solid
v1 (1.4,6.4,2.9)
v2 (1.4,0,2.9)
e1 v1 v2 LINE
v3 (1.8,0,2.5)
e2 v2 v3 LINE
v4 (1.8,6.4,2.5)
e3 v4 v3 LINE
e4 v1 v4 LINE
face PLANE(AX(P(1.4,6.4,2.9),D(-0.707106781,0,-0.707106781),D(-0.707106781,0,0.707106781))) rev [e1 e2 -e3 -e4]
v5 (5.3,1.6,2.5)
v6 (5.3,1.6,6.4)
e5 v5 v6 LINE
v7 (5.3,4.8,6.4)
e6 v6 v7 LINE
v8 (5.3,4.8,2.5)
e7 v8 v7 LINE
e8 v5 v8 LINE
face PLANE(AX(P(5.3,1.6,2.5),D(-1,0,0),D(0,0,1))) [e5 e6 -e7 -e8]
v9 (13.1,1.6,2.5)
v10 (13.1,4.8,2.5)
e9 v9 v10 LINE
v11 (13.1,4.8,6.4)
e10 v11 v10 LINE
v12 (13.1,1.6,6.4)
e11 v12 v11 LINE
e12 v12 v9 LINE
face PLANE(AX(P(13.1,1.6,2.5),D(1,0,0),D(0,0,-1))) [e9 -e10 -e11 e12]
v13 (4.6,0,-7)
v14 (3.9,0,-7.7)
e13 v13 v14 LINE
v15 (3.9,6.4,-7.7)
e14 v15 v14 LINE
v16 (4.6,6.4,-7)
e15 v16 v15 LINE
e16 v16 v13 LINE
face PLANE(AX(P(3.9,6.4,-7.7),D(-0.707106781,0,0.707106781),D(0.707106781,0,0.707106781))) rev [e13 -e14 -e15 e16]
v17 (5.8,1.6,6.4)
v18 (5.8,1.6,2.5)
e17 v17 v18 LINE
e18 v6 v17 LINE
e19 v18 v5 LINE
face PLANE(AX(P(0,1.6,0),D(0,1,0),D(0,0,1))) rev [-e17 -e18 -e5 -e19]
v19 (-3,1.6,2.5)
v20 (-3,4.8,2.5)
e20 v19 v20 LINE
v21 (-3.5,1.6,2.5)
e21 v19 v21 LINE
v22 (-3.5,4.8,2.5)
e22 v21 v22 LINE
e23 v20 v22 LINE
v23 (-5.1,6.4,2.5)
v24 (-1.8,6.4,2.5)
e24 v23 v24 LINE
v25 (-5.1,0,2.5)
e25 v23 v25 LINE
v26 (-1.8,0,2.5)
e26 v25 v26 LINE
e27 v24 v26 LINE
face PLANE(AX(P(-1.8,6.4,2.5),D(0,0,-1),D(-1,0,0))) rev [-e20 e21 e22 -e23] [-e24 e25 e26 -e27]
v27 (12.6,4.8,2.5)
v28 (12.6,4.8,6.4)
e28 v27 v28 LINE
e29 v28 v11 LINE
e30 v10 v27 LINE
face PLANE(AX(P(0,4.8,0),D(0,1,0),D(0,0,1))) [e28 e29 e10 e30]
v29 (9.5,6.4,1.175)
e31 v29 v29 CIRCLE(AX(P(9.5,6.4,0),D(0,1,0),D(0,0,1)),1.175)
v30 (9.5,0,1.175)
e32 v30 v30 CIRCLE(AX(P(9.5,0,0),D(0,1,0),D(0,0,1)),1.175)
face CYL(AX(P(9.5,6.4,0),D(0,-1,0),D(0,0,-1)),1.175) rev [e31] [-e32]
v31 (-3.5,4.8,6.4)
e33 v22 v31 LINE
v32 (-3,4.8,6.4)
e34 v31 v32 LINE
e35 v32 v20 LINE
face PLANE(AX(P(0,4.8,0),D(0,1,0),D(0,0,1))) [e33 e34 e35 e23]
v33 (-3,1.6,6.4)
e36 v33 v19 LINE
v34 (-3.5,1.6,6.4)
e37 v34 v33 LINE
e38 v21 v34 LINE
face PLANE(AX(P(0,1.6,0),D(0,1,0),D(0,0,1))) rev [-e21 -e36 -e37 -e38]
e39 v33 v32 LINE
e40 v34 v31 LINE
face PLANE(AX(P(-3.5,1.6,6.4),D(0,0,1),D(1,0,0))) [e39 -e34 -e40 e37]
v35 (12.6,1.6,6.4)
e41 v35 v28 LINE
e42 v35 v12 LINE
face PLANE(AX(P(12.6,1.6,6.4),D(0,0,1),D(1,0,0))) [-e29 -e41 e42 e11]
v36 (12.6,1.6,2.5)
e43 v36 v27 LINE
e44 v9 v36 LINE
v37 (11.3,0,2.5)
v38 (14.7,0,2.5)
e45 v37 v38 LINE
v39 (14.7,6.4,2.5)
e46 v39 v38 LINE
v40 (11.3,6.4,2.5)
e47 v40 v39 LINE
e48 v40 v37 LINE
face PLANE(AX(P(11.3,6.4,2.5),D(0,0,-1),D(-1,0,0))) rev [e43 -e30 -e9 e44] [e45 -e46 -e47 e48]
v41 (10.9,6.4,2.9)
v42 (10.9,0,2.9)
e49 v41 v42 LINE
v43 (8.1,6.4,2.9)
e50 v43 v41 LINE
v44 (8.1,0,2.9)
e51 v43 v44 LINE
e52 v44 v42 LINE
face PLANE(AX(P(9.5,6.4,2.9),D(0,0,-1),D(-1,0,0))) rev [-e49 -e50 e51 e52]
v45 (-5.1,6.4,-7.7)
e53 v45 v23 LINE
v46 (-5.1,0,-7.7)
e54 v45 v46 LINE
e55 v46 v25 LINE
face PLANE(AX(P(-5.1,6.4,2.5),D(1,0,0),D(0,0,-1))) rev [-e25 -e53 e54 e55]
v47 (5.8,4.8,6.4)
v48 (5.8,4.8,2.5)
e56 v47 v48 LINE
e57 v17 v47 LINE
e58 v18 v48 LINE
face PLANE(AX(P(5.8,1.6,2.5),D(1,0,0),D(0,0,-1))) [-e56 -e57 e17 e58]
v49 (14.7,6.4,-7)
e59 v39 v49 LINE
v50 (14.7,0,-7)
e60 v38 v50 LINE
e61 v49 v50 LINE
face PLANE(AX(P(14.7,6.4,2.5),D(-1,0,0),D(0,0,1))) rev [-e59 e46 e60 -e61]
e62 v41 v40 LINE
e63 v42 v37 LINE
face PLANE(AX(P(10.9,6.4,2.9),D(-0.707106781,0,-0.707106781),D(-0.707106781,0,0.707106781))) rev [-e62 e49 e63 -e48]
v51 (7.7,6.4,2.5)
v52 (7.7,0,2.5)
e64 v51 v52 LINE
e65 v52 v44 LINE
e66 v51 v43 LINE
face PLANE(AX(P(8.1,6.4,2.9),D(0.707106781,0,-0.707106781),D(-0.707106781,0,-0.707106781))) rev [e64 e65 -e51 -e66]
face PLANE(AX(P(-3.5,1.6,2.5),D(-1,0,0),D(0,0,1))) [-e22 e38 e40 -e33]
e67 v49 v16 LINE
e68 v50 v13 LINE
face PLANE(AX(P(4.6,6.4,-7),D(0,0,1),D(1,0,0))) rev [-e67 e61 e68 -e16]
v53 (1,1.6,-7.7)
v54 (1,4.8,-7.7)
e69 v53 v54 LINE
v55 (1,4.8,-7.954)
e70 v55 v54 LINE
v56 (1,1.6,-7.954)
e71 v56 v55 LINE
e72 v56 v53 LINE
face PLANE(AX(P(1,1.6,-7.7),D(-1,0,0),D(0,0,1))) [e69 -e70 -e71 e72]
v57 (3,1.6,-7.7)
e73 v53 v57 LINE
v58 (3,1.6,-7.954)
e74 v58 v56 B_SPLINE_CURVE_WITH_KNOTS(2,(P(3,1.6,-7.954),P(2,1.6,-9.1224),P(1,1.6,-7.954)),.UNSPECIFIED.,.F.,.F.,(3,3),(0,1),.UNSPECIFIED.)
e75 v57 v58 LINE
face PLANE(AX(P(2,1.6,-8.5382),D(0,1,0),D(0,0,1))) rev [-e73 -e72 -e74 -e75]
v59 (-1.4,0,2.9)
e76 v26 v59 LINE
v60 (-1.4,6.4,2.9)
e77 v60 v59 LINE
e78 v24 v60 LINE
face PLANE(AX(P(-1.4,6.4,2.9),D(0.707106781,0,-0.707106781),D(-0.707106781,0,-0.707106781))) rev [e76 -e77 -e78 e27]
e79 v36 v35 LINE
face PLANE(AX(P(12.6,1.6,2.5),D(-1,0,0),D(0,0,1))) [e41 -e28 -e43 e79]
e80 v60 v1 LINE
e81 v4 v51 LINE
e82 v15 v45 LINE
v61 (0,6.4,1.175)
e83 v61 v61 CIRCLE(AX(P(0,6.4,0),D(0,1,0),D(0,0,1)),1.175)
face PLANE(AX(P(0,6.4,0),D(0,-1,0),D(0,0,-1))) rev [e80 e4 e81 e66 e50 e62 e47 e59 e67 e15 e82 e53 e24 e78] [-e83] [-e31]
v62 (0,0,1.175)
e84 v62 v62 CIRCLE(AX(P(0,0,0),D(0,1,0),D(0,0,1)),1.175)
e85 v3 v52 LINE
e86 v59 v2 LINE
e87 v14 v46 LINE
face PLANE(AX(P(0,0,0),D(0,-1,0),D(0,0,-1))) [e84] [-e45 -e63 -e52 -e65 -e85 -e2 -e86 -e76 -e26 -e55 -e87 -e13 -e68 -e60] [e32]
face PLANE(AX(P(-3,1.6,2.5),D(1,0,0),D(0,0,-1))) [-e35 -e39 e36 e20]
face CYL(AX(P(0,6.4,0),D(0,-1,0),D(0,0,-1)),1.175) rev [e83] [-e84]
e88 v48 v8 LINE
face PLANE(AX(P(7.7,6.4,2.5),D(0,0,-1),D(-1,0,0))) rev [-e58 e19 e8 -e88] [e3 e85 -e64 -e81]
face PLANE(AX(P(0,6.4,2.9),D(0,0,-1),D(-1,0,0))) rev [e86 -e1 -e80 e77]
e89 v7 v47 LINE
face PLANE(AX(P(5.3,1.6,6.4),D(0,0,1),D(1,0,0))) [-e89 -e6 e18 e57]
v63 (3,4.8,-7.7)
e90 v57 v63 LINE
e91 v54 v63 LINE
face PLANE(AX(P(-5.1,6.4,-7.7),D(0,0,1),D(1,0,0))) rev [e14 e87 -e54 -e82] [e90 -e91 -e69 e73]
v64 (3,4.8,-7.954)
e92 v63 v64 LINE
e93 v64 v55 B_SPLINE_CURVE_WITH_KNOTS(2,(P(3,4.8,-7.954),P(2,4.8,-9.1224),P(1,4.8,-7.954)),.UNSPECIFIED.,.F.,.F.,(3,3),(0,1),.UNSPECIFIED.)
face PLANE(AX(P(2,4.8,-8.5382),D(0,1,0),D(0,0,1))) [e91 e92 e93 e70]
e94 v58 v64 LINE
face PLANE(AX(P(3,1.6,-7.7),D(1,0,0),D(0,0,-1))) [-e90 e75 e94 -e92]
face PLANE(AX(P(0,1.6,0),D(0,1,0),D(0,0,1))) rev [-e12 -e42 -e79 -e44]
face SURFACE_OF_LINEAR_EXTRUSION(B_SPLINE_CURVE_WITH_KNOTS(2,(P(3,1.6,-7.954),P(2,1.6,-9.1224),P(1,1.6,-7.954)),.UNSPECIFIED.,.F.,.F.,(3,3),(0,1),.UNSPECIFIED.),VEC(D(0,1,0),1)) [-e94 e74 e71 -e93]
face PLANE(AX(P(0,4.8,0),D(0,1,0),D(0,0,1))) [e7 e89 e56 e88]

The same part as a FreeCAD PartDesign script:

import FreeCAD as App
import Part
import Sketcher
from FreeCAD import Vector


def add_polygon(sketch, points):
    """Adds a closed chain of lines whose ends are joined by coincident constraints."""
    first, n = sketch.GeometryCount, len(points)
    for a, b in zip(points, points[1:] + points[:1]):
        sketch.addGeometry(Part.LineSegment(App.Vector(*a, 0), App.Vector(*b, 0)), False)
    for i in range(n):
        sketch.addConstraint(Sketcher.Constraint("Coincident", first + i, 2, first + (i + 1) % n, 1))

doc = App.newDocument("Part")
body = doc.addObject("PartDesign::Body", "Body")

sketch1 = body.newObject("Sketcher::SketchObject", "Sketch")
sketch1.AttachmentSupport = (doc.getObject("XZ_Plane"), [""])
sketch1.MapMode = "FlatFace"
add_polygon(sketch1, [(-1.4, 2.9), (1.4, 2.9), (1.8, 2.5), (7.7, 2.5), (8.1, 2.9), (10.9, 2.9), (11.3, 2.5), (14.7, 2.5), (14.7, -7), (4.6, -7), (3.9, -7.7), (-5.1, -7.7), (-5.1, 2.5), (-1.8, 2.5)])
sketch1.addGeometry(Part.Circle(Vector(9.5, 0, 0), Vector(0, 0, 1), 1.2), False)
sketch1.addGeometry(Part.Circle(Vector(0, 0, 0), Vector(0, 0, 1), 1.2), False)
sketch1.addConstraint([
    Sketcher.Constraint("Horizontal", 0),
    Sketcher.Constraint("Horizontal", 2),
    Sketcher.Constraint("Horizontal", 4),
    Sketcher.Constraint("Horizontal", 6),
    Sketcher.Constraint("Vertical", 7),
    Sketcher.Constraint("Horizontal", 8),
    Sketcher.Constraint("Horizontal", 10),
    Sketcher.Constraint("Vertical", 11),
    Sketcher.Constraint("Horizontal", 12),
    Sketcher.Constraint("Coincident", 15, 3, -1, 1),
    Sketcher.Constraint("Equal", 14, 15),
    Sketcher.Constraint("Symmetric", 1, 2, 12, 2, -2),
    Sketcher.Constraint("PointOnObject", 14, 3, -1),
    Sketcher.Constraint("Perpendicular", 1, 3),
    Sketcher.Constraint("Perpendicular", 3, 5),
    Sketcher.Constraint("Perpendicular", 5, 9),
    Sketcher.Constraint("Parallel", 9, 13),
    Sketcher.Constraint("Horizontal", 0, 2, 3, 2),
    Sketcher.Constraint("Horizontal", 2, 2, 5, 2),
    Sketcher.Constraint("Equal", 0, 4),
    Sketcher.Constraint("Equal", 1, 3),
    Sketcher.Constraint("Diameter", 14, 2.35),
    Sketcher.Constraint("DistanceX", 10, 2, 10, 1, 9.0),
    Sketcher.Constraint("DistanceX", 0, 1, 0, 2, 2.8),
    Sketcher.Constraint("DistanceX", 2, 1, 2, 2, 5.9),
    Sketcher.Constraint("DistanceX", 6, 1, 6, 2, 3.4),
    Sketcher.Constraint("DistanceX", 8, 2, 8, 1, 10.1),
    Sketcher.Constraint("DistanceX", 12, 1, 12, 2, 3.3),
    Sketcher.Constraint("DistanceY", 7, 2, 7, 1, 9.5),
    Sketcher.Constraint("DistanceY", 11, 1, 11, 2, 10.2),
    Sketcher.Constraint("DistanceY", 7, 2, -1, 1, 7.0),
    Sketcher.Constraint("DistanceX", -1, 1, 14, 3, 9.5),
])
pad1 = body.newObject("PartDesign::Pad", "Pad")
pad1.Profile = sketch1
pad1.Length = 6.4
pad1.Reversed = True

sketch2 = body.newObject("Sketcher::SketchObject", "Sketch001")
sketch2.AttachmentSupport = (doc.getObject("XZ_Plane"), [""])
sketch2.MapMode = "FlatFace"
sketch2.AttachmentOffset = App.Placement(Vector(0, 0, -3.2), App.Rotation())
sketch2.addGeometry([
    Part.LineSegment(Vector(1, -7.7, 0), Vector(3, -7.7, 0)),
    Part.LineSegment(Vector(3, -7.7, 0), Vector(3, -7.954, 0)),
    Part.BSplineCurve([Vector(1, -7.954, 0), Vector(2, -9.1224, 0), Vector(3, -7.954, 0)], [3, 3], [0, 1], False, 2, [1, 1, 1], False),
    Part.LineSegment(Vector(1, -7.954, 0), Vector(1, -7.7, 0)),
], False)
sketch2.addConstraint([
    Sketcher.Constraint("Block", 2),
    Sketcher.Constraint("Coincident", 0, 2, 1, 1),
    Sketcher.Constraint("Coincident", 1, 2, 2, 2),
    Sketcher.Constraint("Coincident", 2, 1, 3, 1),
    Sketcher.Constraint("Coincident", 3, 2, 0, 1),
    Sketcher.Constraint("Horizontal", 0),
    Sketcher.Constraint("Vertical", 1),
    Sketcher.Constraint("Vertical", 3),
    Sketcher.Constraint("DistanceY", 0, 2, -1, 1, 7.7),
])
pad2 = body.newObject("PartDesign::Pad", "Pad001")
pad2.Profile = sketch2
pad2.Type = "TwoLengths"
pad2.Length = 1.6
pad2.Length2 = 1.6
pad2.Reversed = True

sketch3 = body.newObject("Sketcher::SketchObject", "Sketch002")
sketch3.AttachmentSupport = (doc.getObject("XZ_Plane"), [""])
sketch3.MapMode = "FlatFace"
sketch3.AttachmentOffset = App.Placement(Vector(0, 0, -3.2), App.Rotation())
add_polygon(sketch3, [(-3.5, 2.5), (-3.5, 6.4), (-3, 6.4), (-3, 2.5)])
add_polygon(sketch3, [(5.3, 2.5), (5.3, 6.4), (5.8, 6.4), (5.8, 2.5)])
add_polygon(sketch3, [(12.6, 2.5), (12.6, 6.4), (13.1, 6.4), (13.1, 2.5)])
sketch3.addConstraint([
    Sketcher.Constraint("Vertical", 0),
    Sketcher.Constraint("Horizontal", 1),
    Sketcher.Constraint("Vertical", 2),
    Sketcher.Constraint("Horizontal", 3),
    Sketcher.Constraint("Vertical", 4),
    Sketcher.Constraint("Horizontal", 5),
    Sketcher.Constraint("Vertical", 6),
    Sketcher.Constraint("Horizontal", 7),
    Sketcher.Constraint("Vertical", 8),
    Sketcher.Constraint("Horizontal", 9),
    Sketcher.Constraint("Vertical", 10),
    Sketcher.Constraint("Horizontal", 11),
    Sketcher.Constraint("Horizontal", 1, 2, 4, 2),
    Sketcher.Constraint("Horizontal", 3, 2, 6, 2),
    Sketcher.Constraint("Horizontal", 5, 2, 8, 2),
    Sketcher.Constraint("Horizontal", 7, 2, 10, 2),
    Sketcher.Constraint("Equal", 3, 5),
    Sketcher.Constraint("Equal", 7, 9),
    Sketcher.Constraint("DistanceX", 1, 1, 1, 2, 0.5),
    Sketcher.Constraint("DistanceY", 0, 1, 0, 2, 3.9),
    Sketcher.Constraint("DistanceX", 1, 2, -1, 1, 3.0),
    Sketcher.Constraint("DistanceY", -1, 1, 0, 2, 6.4),
    Sketcher.Constraint("DistanceX", -1, 1, 4, 2, 5.3),
    Sketcher.Constraint("DistanceX", -1, 1, 8, 2, 12.6),
])
pad3 = body.newObject("PartDesign::Pad", "Pad002")
pad3.Profile = sketch3
pad3.Type = "TwoLengths"
pad3.Length = 1.6
pad3.Length2 = 1.6
pad3.Reversed = True

doc.recompute()
